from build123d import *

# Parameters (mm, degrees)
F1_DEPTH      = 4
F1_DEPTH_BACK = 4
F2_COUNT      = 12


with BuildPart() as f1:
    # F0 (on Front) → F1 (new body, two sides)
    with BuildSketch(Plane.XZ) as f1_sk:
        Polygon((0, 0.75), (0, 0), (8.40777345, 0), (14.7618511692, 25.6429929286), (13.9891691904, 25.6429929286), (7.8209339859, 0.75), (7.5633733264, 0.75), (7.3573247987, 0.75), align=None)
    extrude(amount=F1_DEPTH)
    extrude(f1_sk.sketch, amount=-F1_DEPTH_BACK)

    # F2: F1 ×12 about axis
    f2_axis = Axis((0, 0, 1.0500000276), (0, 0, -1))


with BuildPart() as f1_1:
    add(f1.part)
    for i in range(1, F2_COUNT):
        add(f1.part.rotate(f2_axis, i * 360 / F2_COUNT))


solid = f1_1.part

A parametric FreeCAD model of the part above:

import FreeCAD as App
import Part
import Sketcher

V = App.Vector
Q = App.Units.Quantity

doc = App.newDocument("Part")
body = doc.addObject("PartDesign::Body", "Body")

# Sketch on XZ plane
sketch1 = doc.addObject("Sketcher::SketchObject", "Sketch")
body.addObject(sketch1)
sketch1.AttachmentSupport = (doc.XZ_Plane, [""])
sketch1.MapMode = "FlatFace"
sketch1.addGeometry([
    Part.LineSegment(V(0, 0.75, 0), V(0, 0, 0)),  # 0
    Part.LineSegment(V(0, 0, 0), V(8.407773, 0, 0)),  # 1
    Part.LineSegment(V(8.407773, 0, 0), V(14.761851, 25.642993, 0)),  # 2
    Part.LineSegment(V(14.761851, 25.642993, 0), V(13.989169, 25.642993, 0)),  # 3
    Part.LineSegment(V(13.989169, 25.642993, 0), V(7.820934, 0.75, 0)),  # 4
    Part.LineSegment(V(7.820934, 0.75, 0), V(0, 0.75, 0)),  # 5
], False)
sketch1.addConstraint([
    Sketcher.Constraint("Coincident", 0, 2, 1, 1),
    Sketcher.Constraint("Coincident", 1, 2, 2, 1),
    Sketcher.Constraint("Coincident", 2, 2, 3, 1),
    Sketcher.Constraint("Coincident", 3, 2, 4, 1),
    Sketcher.Constraint("Coincident", 4, 2, 5, 1),
    Sketcher.Constraint("Coincident", 5, 2, 0, 1),
    Sketcher.Constraint("Vertical", 0),
    Sketcher.Constraint("Horizontal", 1),
    Sketcher.Constraint("Horizontal", 3),
    Sketcher.Constraint("Horizontal", 5),
    Sketcher.Constraint("Coincident", 0, 2, -1, 1),
    Sketcher.Constraint("DistanceY", 0, 2, 0, 1, Q("0.75 mm")),
    Sketcher.Constraint("DistanceX", 3, 2, 3, 1, Q("0.772682 mm")),
    Sketcher.Constraint("DistanceX", 1, 1, 1, 2, Q("8.407773 mm")),
    Sketcher.Constraint("DistanceX", 5, 2, 5, 1, Q("7.820934 mm")),
    Sketcher.Constraint("DistanceX", -1, 1, 2, 2, Q("14.761851 mm")),
    Sketcher.Constraint("Distance", 2, Q("26.418505 mm")),
])
pad1 = doc.addObject("PartDesign::Pad", "Pad")
body.addObject(pad1)
pad1.Profile = sketch1
pad1.Type = "TwoLengths"
pad1.Length = 4
pad1.Length2 = 4
body2 = doc.addObject("PartDesign::Body", "Body001")
doc.recompute()

body2.BaseFeature = body
doc.recompute()

body3 = doc.addObject("PartDesign::Body", "Body002")
body3.BaseFeature = body
body3.Placement = App.Placement(V(0, 0, 0), App.Rotation(V(0, 0, -1), 30))
boolean = doc.addObject("PartDesign::Boolean", "Boolean")
body2.addObject(boolean)
boolean.Type = "Fuse"
boolean.addObjects([body3])
doc.recompute()

body4 = doc.addObject("PartDesign::Body", "Body003")
body4.BaseFeature = body
body4.Placement = App.Placement(V(0, 0, 0), App.Rotation(V(0, 0, -1), 60))
boolean2 = doc.addObject("PartDesign::Boolean", "Boolean001")
body2.addObject(boolean2)
boolean2.Type = "Fuse"
boolean2.addObjects([body4])
doc.recompute()

body5 = doc.addObject("PartDesign::Body", "Body004")
body5.BaseFeature = body
body5.Placement = App.Placement(V(0, 0, 0), App.Rotation(V(0, 0, -1), 90))
boolean3 = doc.addObject("PartDesign::Boolean", "Boolean002")
body2.addObject(boolean3)
boolean3.Type = "Fuse"
boolean3.addObjects([body5])
doc.recompute()

body6 = doc.addObject("PartDesign::Body", "Body005")
body6.BaseFeature = body
body6.Placement = App.Placement(V(0, 0, 0), App.Rotation(V(0, 0, -1), 120))
boolean4 = doc.addObject("PartDesign::Boolean", "Boolean003")
body2.addObject(boolean4)
boolean4.Type = "Fuse"
boolean4.addObjects([body6])
doc.recompute()

body7 = doc.addObject("PartDesign::Body", "Body006")
body7.BaseFeature = body
body7.Placement = App.Placement(V(0, 0, 0), App.Rotation(V(0, 0, -1), 150))
boolean5 = doc.addObject("PartDesign::Boolean", "Boolean004")
body2.addObject(boolean5)
boolean5.Type = "Fuse"
boolean5.addObjects([body7])
doc.recompute()

body8 = doc.addObject("PartDesign::Body", "Body007")
body8.BaseFeature = body
body8.Placement = App.Placement(V(0, 0, 0), App.Rotation(V(0, 0, -1), 180))
boolean6 = doc.addObject("PartDesign::Boolean", "Boolean005")
body2.addObject(boolean6)
boolean6.Type = "Fuse"
boolean6.addObjects([body8])
doc.recompute()

body9 = doc.addObject("PartDesign::Body", "Body008")
body9.BaseFeature = body
body9.Placement = App.Placement(V(0, 0, 0), App.Rotation(V(0, 0, -1), 210))
boolean7 = doc.addObject("PartDesign::Boolean", "Boolean006")
body2.addObject(boolean7)
boolean7.Type = "Fuse"
boolean7.addObjects([body9])
doc.recompute()

body10 = doc.addObject("PartDesign::Body", "Body009")
body10.BaseFeature = body
body10.Placement = App.Placement(V(0, 0, 0), App.Rotation(V(0, 0, -1), 240))
boolean8 = doc.addObject("PartDesign::Boolean", "Boolean007")
body2.addObject(boolean8)
boolean8.Type = "Fuse"
boolean8.addObjects([body10])
doc.recompute()

body11 = doc.addObject("PartDesign::Body", "Body010")
body11.BaseFeature = body
body11.Placement = App.Placement(V(0, 0, 0), App.Rotation(V(0, 0, -1), 270))
boolean9 = doc.addObject("PartDesign::Boolean", "Boolean008")
body2.addObject(boolean9)
boolean9.Type = "Fuse"
boolean9.addObjects([body11])
doc.recompute()

body12 = doc.addObject("PartDesign::Body", "Body011")
body12.BaseFeature = body
body12.Placement = App.Placement(V(0, 0, 0), App.Rotation(V(0, 0, -1), 300))
boolean10 = doc.addObject("PartDesign::Boolean", "Boolean009")
body2.addObject(boolean10)
boolean10.Type = "Fuse"
boolean10.addObjects([body12])
doc.recompute()

body.Placement = App.Placement(V(0, 0, 0), App.Rotation(V(0, 0, -1), 330))
boolean11 = doc.addObject("PartDesign::Boolean", "Boolean010")
body2.addObject(boolean11)
boolean11.Type = "Fuse"
boolean11.addObjects([body])

doc.recompute()
